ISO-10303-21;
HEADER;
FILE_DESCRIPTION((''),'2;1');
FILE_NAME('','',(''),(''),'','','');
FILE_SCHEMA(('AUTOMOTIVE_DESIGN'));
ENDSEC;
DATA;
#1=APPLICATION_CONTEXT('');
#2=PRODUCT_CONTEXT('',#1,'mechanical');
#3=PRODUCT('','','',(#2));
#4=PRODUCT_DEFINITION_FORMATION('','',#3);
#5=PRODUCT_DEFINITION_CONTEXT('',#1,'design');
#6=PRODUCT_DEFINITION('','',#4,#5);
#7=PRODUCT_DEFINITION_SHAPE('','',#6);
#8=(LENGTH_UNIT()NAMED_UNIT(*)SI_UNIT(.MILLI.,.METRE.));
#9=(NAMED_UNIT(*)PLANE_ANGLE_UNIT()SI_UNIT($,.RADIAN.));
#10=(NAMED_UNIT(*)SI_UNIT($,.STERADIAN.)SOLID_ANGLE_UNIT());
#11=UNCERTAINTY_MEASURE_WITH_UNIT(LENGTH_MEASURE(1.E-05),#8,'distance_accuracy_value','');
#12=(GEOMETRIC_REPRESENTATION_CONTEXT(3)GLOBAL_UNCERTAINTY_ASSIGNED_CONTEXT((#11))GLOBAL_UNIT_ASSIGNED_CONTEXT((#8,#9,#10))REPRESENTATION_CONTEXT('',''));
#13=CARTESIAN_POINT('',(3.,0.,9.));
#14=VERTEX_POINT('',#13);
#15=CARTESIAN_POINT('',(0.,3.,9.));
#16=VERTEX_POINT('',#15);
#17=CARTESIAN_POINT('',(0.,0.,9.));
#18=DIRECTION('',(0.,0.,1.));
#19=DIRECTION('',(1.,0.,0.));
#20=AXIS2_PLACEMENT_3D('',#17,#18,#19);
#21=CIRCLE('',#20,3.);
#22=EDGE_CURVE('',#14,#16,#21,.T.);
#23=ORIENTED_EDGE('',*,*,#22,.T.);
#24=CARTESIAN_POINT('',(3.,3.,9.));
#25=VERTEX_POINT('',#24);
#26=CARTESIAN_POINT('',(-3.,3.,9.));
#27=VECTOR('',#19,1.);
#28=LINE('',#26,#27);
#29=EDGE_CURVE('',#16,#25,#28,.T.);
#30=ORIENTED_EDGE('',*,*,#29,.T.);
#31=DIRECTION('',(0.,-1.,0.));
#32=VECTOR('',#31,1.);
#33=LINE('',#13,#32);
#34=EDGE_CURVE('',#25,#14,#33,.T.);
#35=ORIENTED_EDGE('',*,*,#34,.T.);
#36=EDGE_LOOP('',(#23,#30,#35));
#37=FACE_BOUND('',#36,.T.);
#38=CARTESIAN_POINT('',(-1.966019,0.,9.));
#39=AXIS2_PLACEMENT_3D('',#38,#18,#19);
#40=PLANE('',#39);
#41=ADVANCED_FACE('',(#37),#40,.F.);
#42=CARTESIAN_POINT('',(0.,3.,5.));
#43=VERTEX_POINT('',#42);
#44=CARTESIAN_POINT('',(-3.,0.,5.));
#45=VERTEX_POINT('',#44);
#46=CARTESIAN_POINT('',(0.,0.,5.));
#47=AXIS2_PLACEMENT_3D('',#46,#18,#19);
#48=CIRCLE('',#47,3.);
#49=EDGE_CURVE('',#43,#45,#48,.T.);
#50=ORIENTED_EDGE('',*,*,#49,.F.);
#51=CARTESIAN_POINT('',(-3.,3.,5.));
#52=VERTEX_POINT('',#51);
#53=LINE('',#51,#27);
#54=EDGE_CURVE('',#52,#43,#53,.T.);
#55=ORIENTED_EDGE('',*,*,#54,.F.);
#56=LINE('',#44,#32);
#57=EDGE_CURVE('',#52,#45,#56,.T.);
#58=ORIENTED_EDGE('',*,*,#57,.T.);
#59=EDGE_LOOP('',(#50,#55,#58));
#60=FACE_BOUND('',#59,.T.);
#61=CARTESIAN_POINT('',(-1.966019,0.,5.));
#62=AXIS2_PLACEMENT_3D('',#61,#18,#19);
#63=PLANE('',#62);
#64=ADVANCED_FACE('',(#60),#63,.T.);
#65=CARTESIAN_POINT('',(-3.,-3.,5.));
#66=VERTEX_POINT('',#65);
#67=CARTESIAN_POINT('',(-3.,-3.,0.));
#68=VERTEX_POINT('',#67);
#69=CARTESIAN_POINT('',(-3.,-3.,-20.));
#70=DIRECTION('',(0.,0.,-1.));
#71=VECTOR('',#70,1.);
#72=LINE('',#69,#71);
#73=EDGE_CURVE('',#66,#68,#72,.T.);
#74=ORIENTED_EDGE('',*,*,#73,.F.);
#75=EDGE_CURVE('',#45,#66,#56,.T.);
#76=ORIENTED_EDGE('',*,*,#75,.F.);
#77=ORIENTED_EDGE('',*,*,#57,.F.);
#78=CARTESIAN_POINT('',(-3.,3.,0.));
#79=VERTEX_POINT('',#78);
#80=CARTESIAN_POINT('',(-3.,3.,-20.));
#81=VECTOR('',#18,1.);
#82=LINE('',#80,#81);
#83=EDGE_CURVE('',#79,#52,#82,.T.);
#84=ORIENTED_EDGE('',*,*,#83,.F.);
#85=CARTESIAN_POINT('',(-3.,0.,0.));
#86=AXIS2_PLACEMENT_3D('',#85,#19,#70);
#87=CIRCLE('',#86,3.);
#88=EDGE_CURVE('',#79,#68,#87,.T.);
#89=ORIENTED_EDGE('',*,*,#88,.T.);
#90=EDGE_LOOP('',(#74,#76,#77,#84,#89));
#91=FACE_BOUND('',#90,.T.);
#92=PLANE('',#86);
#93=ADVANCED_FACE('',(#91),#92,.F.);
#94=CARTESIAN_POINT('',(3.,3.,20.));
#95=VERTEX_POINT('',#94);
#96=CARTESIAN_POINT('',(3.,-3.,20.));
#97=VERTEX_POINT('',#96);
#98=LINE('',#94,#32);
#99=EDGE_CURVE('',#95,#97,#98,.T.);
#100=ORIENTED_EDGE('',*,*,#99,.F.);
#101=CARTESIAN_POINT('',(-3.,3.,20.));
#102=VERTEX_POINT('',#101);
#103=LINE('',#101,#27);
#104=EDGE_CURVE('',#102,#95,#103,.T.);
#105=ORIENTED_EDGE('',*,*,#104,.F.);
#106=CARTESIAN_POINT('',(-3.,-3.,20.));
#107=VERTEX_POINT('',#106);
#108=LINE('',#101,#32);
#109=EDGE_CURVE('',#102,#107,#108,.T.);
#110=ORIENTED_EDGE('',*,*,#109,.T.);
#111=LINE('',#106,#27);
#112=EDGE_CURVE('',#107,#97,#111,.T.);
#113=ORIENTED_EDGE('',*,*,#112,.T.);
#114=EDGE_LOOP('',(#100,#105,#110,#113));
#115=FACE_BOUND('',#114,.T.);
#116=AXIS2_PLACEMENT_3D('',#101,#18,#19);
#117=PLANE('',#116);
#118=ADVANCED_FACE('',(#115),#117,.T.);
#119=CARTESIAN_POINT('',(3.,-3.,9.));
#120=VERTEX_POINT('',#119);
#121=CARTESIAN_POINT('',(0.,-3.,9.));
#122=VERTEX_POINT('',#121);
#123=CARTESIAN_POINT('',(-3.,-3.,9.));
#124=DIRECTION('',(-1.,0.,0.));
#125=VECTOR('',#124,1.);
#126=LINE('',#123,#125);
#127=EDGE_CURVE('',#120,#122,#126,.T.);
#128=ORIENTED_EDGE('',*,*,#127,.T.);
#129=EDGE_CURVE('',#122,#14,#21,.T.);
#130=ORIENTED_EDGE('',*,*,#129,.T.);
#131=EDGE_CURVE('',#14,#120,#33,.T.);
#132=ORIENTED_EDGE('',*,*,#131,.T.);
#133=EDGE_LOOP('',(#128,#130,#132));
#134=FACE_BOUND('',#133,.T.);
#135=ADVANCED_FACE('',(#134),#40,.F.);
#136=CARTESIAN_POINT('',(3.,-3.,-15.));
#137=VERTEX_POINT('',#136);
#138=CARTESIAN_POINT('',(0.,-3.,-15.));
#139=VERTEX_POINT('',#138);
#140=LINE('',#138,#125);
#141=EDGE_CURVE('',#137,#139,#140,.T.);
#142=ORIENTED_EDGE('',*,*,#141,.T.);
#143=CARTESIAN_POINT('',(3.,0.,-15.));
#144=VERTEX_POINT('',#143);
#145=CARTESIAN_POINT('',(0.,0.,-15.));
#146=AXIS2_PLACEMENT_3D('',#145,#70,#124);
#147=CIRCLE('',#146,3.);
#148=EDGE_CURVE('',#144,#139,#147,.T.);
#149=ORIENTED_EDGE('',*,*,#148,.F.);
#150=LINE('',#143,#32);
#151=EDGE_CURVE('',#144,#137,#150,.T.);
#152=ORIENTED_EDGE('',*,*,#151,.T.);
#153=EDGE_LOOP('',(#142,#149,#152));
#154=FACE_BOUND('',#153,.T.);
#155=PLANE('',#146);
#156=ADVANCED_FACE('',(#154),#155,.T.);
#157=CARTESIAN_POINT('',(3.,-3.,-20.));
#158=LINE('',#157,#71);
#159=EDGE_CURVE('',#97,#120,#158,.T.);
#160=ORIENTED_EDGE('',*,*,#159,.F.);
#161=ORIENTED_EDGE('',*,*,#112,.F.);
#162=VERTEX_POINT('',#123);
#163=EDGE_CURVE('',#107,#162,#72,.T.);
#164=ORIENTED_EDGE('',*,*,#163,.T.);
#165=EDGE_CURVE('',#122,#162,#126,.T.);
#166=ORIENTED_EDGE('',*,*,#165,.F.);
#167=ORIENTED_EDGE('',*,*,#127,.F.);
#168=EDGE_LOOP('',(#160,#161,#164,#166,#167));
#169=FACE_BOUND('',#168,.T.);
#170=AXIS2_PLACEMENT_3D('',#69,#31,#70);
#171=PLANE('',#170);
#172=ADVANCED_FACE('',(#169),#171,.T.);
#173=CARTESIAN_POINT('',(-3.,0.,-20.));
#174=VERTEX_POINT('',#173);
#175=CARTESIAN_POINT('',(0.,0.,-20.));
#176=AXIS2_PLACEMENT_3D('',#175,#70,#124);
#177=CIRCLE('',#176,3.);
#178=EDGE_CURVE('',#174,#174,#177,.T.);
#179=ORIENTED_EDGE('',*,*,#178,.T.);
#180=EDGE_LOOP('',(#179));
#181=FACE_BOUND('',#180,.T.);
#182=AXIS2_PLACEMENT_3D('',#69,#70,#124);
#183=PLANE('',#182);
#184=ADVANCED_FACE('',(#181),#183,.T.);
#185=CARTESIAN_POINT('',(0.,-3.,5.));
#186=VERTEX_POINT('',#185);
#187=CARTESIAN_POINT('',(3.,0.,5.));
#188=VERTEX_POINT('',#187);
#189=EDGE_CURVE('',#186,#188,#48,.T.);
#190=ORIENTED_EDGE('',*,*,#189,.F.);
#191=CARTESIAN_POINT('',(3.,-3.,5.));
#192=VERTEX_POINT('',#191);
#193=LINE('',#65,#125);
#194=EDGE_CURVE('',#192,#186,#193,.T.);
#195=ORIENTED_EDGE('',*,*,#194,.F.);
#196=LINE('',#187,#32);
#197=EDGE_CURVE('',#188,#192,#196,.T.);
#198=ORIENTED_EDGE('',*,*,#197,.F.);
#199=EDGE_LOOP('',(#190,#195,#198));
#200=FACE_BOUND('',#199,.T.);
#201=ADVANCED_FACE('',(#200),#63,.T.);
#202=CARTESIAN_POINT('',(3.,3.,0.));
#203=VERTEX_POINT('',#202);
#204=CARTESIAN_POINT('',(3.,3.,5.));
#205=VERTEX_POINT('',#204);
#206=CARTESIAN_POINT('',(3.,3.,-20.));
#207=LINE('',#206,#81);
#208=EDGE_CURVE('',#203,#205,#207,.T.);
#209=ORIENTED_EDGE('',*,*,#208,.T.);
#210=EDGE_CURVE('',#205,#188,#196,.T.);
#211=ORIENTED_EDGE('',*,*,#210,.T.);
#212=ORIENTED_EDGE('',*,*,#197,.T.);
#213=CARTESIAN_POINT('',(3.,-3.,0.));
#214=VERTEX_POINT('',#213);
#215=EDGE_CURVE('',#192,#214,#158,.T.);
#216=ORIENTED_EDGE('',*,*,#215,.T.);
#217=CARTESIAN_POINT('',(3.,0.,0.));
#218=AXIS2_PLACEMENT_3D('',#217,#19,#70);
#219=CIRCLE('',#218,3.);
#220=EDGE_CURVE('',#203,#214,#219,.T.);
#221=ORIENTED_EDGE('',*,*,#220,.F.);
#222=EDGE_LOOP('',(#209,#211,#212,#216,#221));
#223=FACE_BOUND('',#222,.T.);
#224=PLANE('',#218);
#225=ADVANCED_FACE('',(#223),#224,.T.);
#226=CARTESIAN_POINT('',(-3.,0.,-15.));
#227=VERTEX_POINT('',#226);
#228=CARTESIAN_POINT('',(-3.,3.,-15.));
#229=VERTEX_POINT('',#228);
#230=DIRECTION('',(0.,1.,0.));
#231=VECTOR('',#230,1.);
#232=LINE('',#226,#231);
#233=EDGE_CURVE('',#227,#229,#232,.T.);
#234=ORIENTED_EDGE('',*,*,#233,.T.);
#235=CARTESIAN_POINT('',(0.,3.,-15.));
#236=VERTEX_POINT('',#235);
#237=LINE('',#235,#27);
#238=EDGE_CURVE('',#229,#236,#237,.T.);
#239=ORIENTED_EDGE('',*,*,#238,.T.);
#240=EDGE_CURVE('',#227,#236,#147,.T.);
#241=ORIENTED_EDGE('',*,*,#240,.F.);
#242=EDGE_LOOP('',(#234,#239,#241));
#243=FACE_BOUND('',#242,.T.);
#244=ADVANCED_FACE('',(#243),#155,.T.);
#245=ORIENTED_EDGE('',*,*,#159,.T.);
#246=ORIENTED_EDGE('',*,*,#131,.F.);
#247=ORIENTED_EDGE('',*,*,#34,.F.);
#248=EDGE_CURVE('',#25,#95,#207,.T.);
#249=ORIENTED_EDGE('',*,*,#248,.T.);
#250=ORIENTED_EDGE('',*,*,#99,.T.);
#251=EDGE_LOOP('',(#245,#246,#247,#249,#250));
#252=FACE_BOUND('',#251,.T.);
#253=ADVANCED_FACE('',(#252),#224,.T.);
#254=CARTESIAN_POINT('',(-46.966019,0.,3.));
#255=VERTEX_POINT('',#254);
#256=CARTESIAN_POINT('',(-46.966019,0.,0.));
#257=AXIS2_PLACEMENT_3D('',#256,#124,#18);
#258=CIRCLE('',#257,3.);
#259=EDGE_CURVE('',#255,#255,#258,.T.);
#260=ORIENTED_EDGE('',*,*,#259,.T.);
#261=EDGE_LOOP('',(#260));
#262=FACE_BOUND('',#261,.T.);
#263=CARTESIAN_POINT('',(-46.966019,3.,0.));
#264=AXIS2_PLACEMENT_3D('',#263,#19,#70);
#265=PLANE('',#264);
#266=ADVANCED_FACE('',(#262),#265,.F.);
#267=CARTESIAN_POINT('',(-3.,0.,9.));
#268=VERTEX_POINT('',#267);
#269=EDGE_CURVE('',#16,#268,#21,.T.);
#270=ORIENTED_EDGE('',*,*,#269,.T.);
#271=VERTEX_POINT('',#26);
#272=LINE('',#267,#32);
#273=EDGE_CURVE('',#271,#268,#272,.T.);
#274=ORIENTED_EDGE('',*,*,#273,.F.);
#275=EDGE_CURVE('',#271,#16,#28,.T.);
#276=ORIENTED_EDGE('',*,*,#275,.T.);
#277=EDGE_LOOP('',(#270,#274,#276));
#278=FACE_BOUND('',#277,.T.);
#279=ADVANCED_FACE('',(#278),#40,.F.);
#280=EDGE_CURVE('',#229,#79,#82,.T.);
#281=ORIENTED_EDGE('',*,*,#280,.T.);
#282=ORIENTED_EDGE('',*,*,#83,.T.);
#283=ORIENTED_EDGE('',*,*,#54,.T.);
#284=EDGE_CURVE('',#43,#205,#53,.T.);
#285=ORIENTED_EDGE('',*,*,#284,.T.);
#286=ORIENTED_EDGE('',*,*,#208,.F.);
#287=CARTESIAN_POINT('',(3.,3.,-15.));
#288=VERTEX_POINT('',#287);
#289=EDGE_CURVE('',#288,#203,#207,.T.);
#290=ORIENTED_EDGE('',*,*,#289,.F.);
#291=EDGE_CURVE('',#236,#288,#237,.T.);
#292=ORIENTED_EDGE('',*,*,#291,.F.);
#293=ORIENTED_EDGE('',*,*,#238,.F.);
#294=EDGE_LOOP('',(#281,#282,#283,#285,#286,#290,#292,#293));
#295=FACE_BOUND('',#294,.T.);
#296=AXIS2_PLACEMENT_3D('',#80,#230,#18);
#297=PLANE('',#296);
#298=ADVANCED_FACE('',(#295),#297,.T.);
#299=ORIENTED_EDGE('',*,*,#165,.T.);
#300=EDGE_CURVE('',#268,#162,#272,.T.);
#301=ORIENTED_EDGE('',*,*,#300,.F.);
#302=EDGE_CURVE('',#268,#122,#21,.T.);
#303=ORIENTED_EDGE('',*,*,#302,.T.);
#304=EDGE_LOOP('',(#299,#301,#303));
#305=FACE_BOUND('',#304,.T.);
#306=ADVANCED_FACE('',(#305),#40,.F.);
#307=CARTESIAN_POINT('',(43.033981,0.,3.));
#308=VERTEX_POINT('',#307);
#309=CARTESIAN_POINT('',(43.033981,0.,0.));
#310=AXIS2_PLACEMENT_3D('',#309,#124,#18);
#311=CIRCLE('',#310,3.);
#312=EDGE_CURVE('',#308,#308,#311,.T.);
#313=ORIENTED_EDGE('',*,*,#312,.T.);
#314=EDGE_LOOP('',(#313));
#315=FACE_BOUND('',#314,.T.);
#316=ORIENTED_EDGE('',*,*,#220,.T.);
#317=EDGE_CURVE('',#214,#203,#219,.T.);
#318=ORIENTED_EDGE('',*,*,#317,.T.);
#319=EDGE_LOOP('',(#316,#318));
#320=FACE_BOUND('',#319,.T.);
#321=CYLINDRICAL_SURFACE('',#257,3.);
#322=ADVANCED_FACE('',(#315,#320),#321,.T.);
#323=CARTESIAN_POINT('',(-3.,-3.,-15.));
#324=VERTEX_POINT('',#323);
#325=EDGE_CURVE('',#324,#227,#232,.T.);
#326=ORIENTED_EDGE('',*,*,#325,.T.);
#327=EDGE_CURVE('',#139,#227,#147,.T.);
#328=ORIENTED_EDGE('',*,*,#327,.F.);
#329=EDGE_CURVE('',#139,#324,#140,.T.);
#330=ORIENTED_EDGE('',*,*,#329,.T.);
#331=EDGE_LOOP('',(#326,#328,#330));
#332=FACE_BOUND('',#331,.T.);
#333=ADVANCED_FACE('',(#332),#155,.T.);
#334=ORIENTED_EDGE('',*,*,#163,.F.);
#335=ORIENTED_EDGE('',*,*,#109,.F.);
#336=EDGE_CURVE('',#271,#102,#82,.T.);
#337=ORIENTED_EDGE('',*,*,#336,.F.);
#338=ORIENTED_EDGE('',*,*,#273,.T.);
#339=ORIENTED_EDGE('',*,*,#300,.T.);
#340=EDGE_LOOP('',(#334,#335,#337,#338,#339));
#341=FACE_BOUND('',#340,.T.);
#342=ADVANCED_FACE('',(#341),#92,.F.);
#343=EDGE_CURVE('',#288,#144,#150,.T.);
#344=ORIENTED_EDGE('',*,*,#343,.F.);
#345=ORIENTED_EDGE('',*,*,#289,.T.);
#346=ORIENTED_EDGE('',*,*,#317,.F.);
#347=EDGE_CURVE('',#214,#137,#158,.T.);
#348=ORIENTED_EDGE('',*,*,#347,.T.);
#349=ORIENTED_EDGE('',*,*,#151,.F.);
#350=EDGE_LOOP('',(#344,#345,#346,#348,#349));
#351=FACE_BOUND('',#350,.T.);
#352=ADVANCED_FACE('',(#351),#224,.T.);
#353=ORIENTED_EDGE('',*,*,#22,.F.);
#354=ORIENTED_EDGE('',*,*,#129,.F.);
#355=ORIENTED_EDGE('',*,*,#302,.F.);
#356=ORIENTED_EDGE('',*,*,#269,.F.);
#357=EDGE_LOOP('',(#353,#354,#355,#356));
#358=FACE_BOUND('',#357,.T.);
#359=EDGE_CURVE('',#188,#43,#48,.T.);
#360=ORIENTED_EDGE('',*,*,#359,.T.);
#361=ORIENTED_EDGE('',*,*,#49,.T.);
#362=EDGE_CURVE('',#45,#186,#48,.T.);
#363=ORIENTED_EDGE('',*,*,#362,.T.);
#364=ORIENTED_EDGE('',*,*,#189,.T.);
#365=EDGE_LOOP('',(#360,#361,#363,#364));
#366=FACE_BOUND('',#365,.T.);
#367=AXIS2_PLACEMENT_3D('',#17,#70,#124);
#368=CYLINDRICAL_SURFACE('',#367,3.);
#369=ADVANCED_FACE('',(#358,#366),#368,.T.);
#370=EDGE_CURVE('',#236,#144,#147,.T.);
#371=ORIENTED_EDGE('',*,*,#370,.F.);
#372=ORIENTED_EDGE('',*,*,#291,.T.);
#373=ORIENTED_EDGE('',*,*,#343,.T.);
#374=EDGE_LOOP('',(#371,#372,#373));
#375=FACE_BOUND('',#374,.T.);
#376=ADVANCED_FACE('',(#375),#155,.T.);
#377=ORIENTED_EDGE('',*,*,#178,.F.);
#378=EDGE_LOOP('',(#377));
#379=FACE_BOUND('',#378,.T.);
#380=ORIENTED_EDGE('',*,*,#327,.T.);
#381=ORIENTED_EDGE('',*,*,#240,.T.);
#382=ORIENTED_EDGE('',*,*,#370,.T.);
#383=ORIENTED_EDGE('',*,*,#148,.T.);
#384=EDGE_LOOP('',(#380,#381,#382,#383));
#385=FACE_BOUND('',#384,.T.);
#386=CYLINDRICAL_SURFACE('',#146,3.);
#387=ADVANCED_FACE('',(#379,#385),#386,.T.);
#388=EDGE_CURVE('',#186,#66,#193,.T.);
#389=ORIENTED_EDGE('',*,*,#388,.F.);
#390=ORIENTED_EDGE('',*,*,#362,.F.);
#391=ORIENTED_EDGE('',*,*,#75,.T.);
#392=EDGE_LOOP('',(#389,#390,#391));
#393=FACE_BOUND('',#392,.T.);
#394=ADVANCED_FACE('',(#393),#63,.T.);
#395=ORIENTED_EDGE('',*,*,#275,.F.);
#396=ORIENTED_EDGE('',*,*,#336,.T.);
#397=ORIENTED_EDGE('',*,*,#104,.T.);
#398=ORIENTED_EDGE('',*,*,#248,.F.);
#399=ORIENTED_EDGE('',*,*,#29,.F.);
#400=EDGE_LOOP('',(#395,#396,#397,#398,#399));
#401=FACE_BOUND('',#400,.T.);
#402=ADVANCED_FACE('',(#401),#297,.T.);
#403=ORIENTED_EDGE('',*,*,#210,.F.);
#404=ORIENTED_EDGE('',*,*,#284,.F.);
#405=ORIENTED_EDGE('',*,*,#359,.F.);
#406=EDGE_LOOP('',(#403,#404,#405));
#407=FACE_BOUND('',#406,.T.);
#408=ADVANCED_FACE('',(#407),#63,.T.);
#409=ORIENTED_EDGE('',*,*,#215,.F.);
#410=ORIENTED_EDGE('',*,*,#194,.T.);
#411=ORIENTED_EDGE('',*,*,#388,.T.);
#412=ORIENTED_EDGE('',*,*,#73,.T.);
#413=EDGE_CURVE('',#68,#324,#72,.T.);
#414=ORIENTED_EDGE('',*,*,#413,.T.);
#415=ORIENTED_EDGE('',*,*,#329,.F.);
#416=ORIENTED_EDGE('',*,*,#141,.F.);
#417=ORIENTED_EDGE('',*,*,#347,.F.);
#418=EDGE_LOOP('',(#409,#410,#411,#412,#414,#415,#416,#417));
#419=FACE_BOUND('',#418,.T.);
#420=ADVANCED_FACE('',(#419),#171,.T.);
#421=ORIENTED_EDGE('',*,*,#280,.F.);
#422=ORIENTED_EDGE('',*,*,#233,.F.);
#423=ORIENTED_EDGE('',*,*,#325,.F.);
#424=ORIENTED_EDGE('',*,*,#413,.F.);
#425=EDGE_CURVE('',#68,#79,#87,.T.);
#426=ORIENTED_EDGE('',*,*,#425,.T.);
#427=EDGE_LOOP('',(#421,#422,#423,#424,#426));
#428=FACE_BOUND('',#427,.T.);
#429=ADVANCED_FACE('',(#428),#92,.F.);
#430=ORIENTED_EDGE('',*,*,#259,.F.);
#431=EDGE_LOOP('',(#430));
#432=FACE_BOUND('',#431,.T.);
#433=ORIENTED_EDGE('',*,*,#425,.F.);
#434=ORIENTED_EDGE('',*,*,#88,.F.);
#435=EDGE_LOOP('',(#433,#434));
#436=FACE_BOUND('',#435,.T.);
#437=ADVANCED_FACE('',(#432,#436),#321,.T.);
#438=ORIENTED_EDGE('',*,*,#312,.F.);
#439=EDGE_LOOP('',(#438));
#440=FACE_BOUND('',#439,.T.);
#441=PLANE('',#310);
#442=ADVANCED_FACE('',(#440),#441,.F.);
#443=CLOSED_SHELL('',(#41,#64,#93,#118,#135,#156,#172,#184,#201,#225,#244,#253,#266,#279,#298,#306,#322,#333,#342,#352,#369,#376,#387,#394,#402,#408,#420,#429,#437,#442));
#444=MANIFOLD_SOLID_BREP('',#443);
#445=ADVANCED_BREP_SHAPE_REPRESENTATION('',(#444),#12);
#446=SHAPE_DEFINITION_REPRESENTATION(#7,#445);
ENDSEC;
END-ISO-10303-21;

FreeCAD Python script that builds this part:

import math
import FreeCAD as App
import Part
import Sketcher

V = App.Vector
Q = App.Units.Quantity


def add_polygon(sketch, points):
    """Adds a closed chain of lines whose ends are joined by coincident constraints."""
    first, n = sketch.GeometryCount, len(points)
    for a, b in zip(points, points[1:] + points[:1]):
        sketch.addGeometry(Part.LineSegment(App.Vector(*a, 0), App.Vector(*b, 0)), False)
    for i in range(n):
        sketch.addConstraint(Sketcher.Constraint("Coincident", first + i, 2, first + (i + 1) % n, 1))

doc = App.newDocument("Part")
body = doc.addObject("PartDesign::Body", "Body")

sketch1 = body.newObject("Sketcher::SketchObject", "Sketch")
sketch1.AttachmentSupport = (doc.getObject("XY_Plane"), [""])
sketch1.MapMode = "FlatFace"
add_polygon(sketch1, [(-47, 3), (-47, 0), (43, 0), (43, 3)])
sketch1.addConstraint([
    Sketcher.Constraint("Vertical", 0),
    Sketcher.Constraint("Horizontal", 1),
    Sketcher.Constraint("Vertical", 2),
    Sketcher.Constraint("Horizontal", 3),
    Sketcher.Constraint("PointOnObject", 0, 2, -1),
    Sketcher.Constraint("DistanceX", 1, 1, 1, 2, Q("90 mm")),
    Sketcher.Constraint("DistanceY", 0, 2, 0, 1, Q("3 mm")),
    Sketcher.Constraint("DistanceX", 0, 2, -1, 1, Q("46.966019 mm")),
])
revolution = body.newObject("PartDesign::Revolution", "Revolution")
revolution.Profile = sketch1
revolution.ReferenceAxis = (sketch1, ["H_Axis"])
revolution.Angle = 360

sketch2 = body.newObject("Sketcher::SketchObject", "Sketch001")
sketch2.AttachmentSupport = (doc.getObject("YZ_Plane"), [""])
sketch2.MapMode = "FlatFace"
add_polygon(sketch2, [(3, 20), (-3, 20), (-3, -20), (3, -20)])
sketch2.addConstraint([
    Sketcher.Constraint("Horizontal", 0),
    Sketcher.Constraint("Vertical", 1),
    Sketcher.Constraint("Horizontal", 2),
    Sketcher.Constraint("Vertical", 3),
    Sketcher.Constraint("Symmetric", 0, 2, 2, 2, -1, 1),
    Sketcher.Constraint("DistanceX", 0, 2, 0, 1, Q("6 mm")),
    Sketcher.Constraint("DistanceY", 1, 2, 1, 1, Q("40 mm")),
])
pad1 = body.newObject("PartDesign::Pad", "Pad")
pad1.Profile = sketch2
pad1.Type = "TwoLengths"
pad1.Length = 3
pad1.Length2 = 3

sketch3 = body.newObject("Sketcher::SketchObject", "Sketch002")
sketch3.AttachmentSupport = (doc.getObject("XY_Plane"), [""])
sketch3.MapMode = "FlatFace"
sketch3.AttachmentOffset = App.Placement(V(0, 0, -20), App.Rotation())
sketch3.addGeometry([
    Part.LineSegment(V(3, 3, 0), V(3, 0, 0)),
    Part.ArcOfCircle(Part.Circle(V(0, 0, 0), V(0, 0, 1), 3), math.radians(0), math.radians(90)),
    Part.LineSegment(V(0, 3, 0), V(3, 3, 0)),
    Part.ArcOfCircle(Part.Circle(V(0, 0, 0), V(0, 0, 1), 3), math.radians(90), math.radians(180)),
    Part.LineSegment(V(-3, 0, 0), V(-3, 3, 0)),
    Part.LineSegment(V(-3, 3, 0), V(0, 3, 0)),
    Part.LineSegment(V(3, -3, 0), V(0, -3, 0)),
    Part.ArcOfCircle(Part.Circle(V(0, 0, 0), V(0, 0, 1), 3), math.radians(-90), math.radians(0)),
    Part.LineSegment(V(3, 0, 0), V(3, -3, 0)),
    Part.LineSegment(V(0, -3, 0), V(-3, -3, 0)),
    Part.LineSegment(V(-3, -3, 0), V(-3, 0, 0)),
    Part.ArcOfCircle(Part.Circle(V(0, 0, 0), V(0, 0, 1), 3), math.radians(180), math.radians(270)),
], False)
sketch3.addConstraint([
    Sketcher.Constraint("Tangent", 0, 2, 1, 1),
    Sketcher.Constraint("Tangent", 1, 2, 2, 1),
    Sketcher.Constraint("Coincident", 2, 2, 0, 1),
    Sketcher.Constraint("Tangent", 3, 2, 4, 1),
    Sketcher.Constraint("Coincident", 4, 2, 5, 1),
    Sketcher.Constraint("Tangent", 5, 2, 3, 1),
    Sketcher.Constraint("Tangent", 6, 2, 7, 1),
    Sketcher.Constraint("Tangent", 7, 2, 8, 1),
    Sketcher.Constraint("Coincident", 8, 2, 6, 1),
    Sketcher.Constraint("Coincident", 9, 2, 10, 1),
    Sketcher.Constraint("Tangent", 10, 2, 11, 1),
    Sketcher.Constraint("Tangent", 11, 2, 9, 1),
    Sketcher.Constraint("Vertical", 0),
    Sketcher.Constraint("Horizontal", 2),
    Sketcher.Constraint("Vertical", 4),
    Sketcher.Constraint("Horizontal", 5),
    Sketcher.Constraint("Horizontal", 6),
    Sketcher.Constraint("Vertical", 8),
    Sketcher.Constraint("Horizontal", 9),
    Sketcher.Constraint("Vertical", 10),
    Sketcher.Constraint("Coincident", 1, 3, -1, 1),
    Sketcher.Constraint("Coincident", 3, 3, -1, 1),
    Sketcher.Constraint("Coincident", 7, 3, -1, 1),
    Sketcher.Constraint("Coincident", 11, 3, -1, 1),
    Sketcher.Constraint("Equal", 1, 3),
    Sketcher.Constraint("Equal", 3, 7),
    Sketcher.Constraint("Equal", 7, 11),
    Sketcher.Constraint("Radius", 1, Q("3 mm")),
])
pocket1 = body.newObject("PartDesign::Pocket", "Pocket")
pocket1.Profile = sketch3
pocket1.Length = 5
pocket1.Reversed = True

sketch4 = body.newObject("Sketcher::SketchObject", "Sketch003")
sketch4.AttachmentSupport = (doc.getObject("XY_Plane"), [""])
sketch4.MapMode = "FlatFace"
sketch4.AttachmentOffset = App.Placement(V(0, 0, 8), App.Rotation())
add_polygon(sketch4, [(-57.8, 13.9), (-57.8, -13.9), (53.9, -13.9), (53.9, 13.9)])
sketch4.addGeometry(Part.Circle(V(0, 0, 0), V(0, 0, 1), 3), False)
sketch4.addConstraint([
    Sketcher.Constraint("Vertical", 0),
    Sketcher.Constraint("Horizontal", 1),
    Sketcher.Constraint("Vertical", 2),
    Sketcher.Constraint("Horizontal", 3),
    Sketcher.Constraint("Coincident", 4, 3, -1, 1),
    Sketcher.Constraint("Diameter", 4, Q("6 mm")),
    Sketcher.Constraint("DistanceX", 1, 1, 1, 2, Q("111.734 mm")),
    Sketcher.Constraint("DistanceY", 0, 2, 0, 1, Q("27.734 mm")),
    Sketcher.Constraint("DistanceX", 0, 2, -1, 1, Q("57.833 mm")),
    Sketcher.Constraint("DistanceY", 0, 2, -1, 1, Q("13.867 mm")),
])
pocket2 = body.newObject("PartDesign::Pocket", "Pocket001")
pocket2.Profile = sketch4
pocket2.Type = "TwoLengths"
pocket2.Length = 1
pocket2.Length2 = 3
pocket2.Reversed = True

doc.recompute()
